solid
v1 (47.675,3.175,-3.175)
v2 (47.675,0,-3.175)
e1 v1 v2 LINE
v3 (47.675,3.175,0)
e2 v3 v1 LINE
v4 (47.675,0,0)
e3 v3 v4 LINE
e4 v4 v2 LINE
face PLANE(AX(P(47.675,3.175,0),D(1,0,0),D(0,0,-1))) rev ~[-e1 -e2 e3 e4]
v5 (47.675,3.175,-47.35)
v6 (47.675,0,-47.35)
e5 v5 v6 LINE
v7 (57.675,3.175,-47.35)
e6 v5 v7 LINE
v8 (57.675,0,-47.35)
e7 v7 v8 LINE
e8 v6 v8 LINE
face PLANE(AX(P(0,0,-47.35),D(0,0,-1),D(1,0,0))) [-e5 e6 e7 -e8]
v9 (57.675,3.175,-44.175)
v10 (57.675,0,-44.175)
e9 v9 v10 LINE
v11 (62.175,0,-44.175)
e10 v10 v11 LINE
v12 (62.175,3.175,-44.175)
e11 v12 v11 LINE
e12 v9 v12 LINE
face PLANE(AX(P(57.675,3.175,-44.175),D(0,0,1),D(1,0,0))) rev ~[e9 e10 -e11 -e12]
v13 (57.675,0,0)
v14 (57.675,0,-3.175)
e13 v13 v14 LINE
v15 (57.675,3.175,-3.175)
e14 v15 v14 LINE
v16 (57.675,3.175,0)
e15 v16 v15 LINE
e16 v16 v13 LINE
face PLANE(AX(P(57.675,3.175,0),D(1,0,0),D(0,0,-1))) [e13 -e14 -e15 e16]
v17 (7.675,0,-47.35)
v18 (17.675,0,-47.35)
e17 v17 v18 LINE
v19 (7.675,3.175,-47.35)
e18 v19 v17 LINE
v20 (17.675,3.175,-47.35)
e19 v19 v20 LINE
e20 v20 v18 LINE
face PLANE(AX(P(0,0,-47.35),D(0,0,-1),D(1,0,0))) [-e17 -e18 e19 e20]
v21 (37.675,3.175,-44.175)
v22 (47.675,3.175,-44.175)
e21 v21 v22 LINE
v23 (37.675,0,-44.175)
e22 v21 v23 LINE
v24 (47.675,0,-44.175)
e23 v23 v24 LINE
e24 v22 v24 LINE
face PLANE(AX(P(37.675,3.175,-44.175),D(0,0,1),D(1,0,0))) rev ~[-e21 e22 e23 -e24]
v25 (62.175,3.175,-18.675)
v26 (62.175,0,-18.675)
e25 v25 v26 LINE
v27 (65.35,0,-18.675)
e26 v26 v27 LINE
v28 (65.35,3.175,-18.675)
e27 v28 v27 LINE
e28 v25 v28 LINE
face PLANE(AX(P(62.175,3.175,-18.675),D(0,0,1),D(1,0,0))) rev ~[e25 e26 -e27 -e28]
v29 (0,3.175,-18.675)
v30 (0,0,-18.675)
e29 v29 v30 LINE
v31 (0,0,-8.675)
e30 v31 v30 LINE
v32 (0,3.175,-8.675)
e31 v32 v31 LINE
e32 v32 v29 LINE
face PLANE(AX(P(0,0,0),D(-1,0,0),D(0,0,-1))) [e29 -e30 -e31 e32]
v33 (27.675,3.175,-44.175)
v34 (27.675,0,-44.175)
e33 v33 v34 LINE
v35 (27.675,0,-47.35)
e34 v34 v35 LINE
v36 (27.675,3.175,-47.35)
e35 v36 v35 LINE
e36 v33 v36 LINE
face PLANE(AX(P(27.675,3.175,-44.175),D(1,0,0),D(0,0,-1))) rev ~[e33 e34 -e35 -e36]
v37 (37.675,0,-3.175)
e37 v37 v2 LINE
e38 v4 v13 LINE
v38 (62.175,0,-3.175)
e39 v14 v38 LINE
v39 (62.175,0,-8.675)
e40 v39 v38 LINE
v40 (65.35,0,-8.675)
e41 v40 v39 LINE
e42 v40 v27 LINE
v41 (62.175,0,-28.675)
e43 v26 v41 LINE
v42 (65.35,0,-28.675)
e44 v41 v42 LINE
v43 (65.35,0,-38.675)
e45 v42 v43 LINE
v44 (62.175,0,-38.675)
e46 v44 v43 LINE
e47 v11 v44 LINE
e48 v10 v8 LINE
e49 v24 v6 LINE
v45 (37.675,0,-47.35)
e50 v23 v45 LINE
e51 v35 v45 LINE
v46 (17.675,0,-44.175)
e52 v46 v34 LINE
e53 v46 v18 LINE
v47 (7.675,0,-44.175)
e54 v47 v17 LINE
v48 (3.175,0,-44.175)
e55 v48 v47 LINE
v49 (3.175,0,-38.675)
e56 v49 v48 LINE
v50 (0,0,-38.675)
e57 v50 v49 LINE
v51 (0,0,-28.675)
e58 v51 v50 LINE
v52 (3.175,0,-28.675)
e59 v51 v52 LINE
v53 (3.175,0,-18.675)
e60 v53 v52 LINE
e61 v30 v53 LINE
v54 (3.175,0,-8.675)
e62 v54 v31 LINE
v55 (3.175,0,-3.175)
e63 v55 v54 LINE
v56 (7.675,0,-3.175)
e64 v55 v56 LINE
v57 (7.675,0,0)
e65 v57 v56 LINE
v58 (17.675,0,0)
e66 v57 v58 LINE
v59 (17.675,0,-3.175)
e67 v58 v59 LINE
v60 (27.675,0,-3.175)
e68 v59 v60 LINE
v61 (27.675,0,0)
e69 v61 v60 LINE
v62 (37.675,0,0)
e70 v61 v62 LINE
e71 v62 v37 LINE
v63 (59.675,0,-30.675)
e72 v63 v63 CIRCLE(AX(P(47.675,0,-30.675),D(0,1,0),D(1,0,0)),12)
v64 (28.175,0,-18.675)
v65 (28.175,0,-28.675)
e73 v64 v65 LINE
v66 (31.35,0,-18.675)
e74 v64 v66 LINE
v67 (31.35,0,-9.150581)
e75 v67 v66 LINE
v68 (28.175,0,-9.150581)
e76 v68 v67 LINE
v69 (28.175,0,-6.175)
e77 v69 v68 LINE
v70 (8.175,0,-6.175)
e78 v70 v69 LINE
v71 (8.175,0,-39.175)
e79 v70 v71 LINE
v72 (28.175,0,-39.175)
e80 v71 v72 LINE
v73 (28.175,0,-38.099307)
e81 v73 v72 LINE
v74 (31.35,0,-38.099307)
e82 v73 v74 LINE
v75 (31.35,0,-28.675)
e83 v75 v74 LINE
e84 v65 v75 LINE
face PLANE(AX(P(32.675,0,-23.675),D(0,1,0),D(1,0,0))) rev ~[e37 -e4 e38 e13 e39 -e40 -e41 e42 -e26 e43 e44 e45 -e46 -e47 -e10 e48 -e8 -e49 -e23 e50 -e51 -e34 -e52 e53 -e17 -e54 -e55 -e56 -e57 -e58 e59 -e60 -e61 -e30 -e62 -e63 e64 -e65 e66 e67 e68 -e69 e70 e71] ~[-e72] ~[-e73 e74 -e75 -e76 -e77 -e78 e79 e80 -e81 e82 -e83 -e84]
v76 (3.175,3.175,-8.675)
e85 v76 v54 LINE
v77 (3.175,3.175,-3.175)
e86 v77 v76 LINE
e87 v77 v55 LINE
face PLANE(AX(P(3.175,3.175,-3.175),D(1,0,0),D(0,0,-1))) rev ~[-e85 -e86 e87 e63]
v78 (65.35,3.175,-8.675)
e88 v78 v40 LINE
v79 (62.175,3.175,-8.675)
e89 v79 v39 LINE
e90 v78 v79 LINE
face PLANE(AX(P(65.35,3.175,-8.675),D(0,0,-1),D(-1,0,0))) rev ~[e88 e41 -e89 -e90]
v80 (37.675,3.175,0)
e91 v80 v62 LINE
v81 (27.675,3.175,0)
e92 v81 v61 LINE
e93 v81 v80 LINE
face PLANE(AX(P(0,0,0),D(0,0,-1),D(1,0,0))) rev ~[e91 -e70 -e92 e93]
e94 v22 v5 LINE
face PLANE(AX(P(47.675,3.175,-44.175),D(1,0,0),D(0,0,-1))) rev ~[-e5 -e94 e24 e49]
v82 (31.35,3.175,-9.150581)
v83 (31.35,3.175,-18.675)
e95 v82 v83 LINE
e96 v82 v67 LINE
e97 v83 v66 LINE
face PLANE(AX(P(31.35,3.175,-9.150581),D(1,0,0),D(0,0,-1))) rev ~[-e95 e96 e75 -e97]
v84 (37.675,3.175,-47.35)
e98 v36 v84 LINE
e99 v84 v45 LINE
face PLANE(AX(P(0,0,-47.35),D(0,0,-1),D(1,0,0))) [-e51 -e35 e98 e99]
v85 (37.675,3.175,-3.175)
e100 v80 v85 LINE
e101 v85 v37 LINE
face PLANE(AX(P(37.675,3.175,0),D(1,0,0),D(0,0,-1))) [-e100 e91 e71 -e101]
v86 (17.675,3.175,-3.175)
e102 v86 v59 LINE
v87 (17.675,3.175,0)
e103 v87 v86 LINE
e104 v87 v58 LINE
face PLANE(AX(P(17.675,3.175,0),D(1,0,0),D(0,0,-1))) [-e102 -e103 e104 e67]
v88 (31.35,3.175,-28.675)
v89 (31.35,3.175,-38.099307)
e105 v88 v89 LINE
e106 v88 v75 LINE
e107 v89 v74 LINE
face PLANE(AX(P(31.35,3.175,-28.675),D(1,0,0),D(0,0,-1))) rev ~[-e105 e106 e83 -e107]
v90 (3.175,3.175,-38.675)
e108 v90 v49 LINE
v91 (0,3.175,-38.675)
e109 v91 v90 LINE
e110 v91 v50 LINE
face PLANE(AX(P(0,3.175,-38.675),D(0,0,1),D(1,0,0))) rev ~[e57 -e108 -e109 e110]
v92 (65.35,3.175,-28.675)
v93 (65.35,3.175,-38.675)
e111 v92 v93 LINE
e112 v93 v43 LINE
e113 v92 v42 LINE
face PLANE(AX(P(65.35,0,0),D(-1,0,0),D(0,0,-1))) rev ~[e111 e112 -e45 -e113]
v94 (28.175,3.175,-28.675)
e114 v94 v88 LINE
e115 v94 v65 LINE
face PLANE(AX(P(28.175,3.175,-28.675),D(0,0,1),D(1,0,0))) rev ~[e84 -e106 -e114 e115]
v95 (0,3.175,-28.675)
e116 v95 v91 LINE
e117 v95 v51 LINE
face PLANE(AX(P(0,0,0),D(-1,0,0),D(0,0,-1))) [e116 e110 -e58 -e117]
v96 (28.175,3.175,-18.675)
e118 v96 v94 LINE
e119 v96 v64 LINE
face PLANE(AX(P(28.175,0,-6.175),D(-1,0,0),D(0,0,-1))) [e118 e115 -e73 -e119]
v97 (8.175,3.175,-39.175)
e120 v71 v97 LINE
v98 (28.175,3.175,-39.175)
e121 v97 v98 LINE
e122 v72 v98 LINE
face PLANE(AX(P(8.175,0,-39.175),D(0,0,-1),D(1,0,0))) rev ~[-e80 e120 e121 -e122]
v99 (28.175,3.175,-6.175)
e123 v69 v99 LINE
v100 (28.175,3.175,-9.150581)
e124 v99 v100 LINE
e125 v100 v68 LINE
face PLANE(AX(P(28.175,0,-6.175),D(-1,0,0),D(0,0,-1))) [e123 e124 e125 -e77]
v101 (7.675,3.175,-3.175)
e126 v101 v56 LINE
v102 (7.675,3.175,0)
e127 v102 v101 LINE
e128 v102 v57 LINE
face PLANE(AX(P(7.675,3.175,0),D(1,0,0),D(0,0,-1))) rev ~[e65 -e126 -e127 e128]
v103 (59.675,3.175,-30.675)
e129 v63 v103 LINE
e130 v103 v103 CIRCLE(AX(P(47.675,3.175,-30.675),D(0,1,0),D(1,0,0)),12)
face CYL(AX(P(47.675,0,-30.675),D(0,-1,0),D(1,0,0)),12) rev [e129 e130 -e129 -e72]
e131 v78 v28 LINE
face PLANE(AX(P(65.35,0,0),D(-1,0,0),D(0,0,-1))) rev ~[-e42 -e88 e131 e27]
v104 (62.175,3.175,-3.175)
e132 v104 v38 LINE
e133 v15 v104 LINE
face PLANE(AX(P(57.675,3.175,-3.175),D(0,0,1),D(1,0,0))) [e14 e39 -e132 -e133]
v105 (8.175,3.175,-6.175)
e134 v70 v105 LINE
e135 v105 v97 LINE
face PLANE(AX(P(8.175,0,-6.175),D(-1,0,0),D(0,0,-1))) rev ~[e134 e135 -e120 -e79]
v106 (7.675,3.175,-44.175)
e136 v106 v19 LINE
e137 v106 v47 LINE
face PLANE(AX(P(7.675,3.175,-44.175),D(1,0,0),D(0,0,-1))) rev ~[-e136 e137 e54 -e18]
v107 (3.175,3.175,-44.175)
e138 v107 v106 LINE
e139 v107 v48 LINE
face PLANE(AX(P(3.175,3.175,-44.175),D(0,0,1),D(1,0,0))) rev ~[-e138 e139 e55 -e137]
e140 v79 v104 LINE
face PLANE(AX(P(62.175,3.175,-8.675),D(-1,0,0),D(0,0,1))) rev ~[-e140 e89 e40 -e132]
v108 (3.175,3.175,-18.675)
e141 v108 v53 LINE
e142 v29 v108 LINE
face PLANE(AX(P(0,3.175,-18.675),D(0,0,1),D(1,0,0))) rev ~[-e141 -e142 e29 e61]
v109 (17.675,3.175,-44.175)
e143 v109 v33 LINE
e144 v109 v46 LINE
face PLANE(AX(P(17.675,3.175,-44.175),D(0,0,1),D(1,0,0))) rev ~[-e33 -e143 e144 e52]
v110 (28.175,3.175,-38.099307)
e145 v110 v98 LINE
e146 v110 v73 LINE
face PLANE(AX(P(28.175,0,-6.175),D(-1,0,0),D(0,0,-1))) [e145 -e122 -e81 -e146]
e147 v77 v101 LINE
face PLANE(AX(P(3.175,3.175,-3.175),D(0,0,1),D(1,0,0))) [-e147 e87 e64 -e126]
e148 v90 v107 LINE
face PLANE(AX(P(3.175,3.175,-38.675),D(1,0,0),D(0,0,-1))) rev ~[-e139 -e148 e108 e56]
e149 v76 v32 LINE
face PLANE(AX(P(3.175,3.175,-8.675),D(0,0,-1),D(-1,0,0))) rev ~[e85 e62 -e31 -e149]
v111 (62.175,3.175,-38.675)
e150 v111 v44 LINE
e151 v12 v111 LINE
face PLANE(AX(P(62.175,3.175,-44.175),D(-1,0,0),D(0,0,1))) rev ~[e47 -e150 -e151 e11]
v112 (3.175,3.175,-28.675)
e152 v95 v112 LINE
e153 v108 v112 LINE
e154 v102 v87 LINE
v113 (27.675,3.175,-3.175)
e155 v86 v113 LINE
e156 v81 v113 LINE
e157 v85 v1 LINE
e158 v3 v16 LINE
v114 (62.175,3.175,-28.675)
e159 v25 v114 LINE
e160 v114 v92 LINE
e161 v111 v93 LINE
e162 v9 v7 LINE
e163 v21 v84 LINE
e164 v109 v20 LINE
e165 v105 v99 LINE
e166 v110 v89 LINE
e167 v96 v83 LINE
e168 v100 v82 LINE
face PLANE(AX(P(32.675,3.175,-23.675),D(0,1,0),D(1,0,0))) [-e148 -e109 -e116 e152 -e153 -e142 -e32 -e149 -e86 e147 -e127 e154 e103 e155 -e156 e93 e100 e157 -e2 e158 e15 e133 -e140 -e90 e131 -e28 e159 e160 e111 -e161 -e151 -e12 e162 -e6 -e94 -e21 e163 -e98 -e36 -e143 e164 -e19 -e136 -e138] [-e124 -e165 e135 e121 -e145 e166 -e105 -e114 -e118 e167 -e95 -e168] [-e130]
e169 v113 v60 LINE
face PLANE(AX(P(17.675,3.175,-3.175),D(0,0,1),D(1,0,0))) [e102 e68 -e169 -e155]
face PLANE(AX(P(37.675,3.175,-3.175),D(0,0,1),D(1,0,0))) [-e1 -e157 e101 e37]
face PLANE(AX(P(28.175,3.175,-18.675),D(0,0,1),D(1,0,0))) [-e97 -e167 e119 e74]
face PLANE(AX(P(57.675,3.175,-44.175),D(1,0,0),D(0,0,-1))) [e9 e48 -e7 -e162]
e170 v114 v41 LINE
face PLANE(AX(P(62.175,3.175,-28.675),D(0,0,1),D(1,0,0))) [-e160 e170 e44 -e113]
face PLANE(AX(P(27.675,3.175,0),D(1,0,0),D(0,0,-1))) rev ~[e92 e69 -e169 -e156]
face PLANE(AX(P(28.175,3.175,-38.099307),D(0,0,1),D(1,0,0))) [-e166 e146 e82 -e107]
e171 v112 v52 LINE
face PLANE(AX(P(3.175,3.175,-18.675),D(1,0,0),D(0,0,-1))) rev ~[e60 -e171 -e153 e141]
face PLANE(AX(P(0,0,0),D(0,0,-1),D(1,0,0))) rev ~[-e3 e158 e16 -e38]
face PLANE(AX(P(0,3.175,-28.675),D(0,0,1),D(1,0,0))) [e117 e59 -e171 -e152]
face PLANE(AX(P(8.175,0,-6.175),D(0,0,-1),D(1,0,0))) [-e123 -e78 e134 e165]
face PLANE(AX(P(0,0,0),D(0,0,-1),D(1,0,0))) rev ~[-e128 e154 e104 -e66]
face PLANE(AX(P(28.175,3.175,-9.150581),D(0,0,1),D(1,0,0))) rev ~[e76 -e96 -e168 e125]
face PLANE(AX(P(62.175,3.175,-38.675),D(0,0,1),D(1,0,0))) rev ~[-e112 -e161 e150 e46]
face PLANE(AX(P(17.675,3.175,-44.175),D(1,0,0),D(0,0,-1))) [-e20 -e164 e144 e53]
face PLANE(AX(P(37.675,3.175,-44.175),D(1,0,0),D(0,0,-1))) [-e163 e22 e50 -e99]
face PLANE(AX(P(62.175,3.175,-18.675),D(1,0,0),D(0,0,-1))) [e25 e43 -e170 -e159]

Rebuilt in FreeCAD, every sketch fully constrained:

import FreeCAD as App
import Part
import Sketcher
Q = App.Units.Quantity


def add_polygon(sketch, points):
    """Adds a closed chain of lines whose ends are joined by coincident constraints."""
    first, n = sketch.GeometryCount, len(points)
    for a, b in zip(points, points[1:] + points[:1]):
        sketch.addGeometry(Part.LineSegment(App.Vector(*a, 0), App.Vector(*b, 0)), False)
    for i in range(n):
        sketch.addConstraint(Sketcher.Constraint("Coincident", first + i, 2, first + (i + 1) % n, 1))

doc = App.newDocument("Part")
body = doc.addObject("PartDesign::Body", "Body")

# Sketch on XZ plane
sketch1 = doc.addObject("Sketcher::SketchObject", "Sketch")
body.addObject(sketch1)
sketch1.AttachmentSupport = (doc.XZ_Plane, [""])
sketch1.MapMode = "FlatFace"
add_polygon(sketch1, [(0, -47), (0, 0), (65, 0), (65, -47)])  # lines 0-3
add_polygon(sketch1, [(28, -6), (8, -6), (8, -39), (28, -39)])  # lines 4-7
sketch1.addGeometry(Part.Circle(App.Vector(48, -31, 0), App.Vector(0, 0, 1), 12), False)  # 8
sketch1.addConstraint([
    Sketcher.Constraint("Vertical", 0),
    Sketcher.Constraint("Horizontal", 1),
    Sketcher.Constraint("Vertical", 2),
    Sketcher.Constraint("Horizontal", 3),
    Sketcher.Constraint("Horizontal", 4),
    Sketcher.Constraint("Vertical", 5),
    Sketcher.Constraint("Horizontal", 6),
    Sketcher.Constraint("Vertical", 7),
    Sketcher.Constraint("Coincident", 0, 2, -1, 1),
    Sketcher.Constraint("Diameter", 8, Q("24 mm")),
    Sketcher.Constraint("DistanceX", 4, 2, 4, 1, Q("20 mm")),
    Sketcher.Constraint("DistanceY", 5, 2, 5, 1, Q("33 mm")),
    Sketcher.Constraint("DistanceX", 1, 1, 1, 2, Q("65.35 mm")),
    Sketcher.Constraint("DistanceY", 0, 1, 0, 2, Q("47.35 mm")),
    Sketcher.Constraint("DistanceX", 4, 2, 8, 3, Q("39.5 mm")),
    Sketcher.Constraint("DistanceY", 8, 3, 4, 2, Q("24.5 mm")),
    Sketcher.Constraint("DistanceX", -1, 1, 8, 3, Q("47.675 mm")),
    Sketcher.Constraint("DistanceY", 8, 3, -1, 1, Q("30.675 mm")),
])
pad1 = doc.addObject("PartDesign::Pad", "Pad")
body.addObject(pad1)
pad1.Profile = sketch1
pad1.Length = 3.175
pad1.Reversed = True

# Sketch on XZ plane
sketch2 = doc.addObject("Sketcher::SketchObject", "Sketch001")
body.addObject(sketch2)
sketch2.AttachmentSupport = (doc.XZ_Plane, [""])
sketch2.MapMode = "FlatFace"
sketch2.AttachmentOffset = App.Placement(App.Vector(0, 0, -3.175), App.Rotation())
add_polygon(sketch2, [(17.7, -47.4), (17.7, -44.2), (27.7, -44.2), (27.7, -47.4)])  # lines 0-3
add_polygon(sketch2, [(37.7, -47.4), (37.7, -44.2), (47.7, -44.2), (47.7, -47.4)])  # lines 4-7
add_polygon(sketch2, [(57.7, -47.4), (57.7, -44.2), (62.2, -44.2), (62.2, -38.7), (65.3, -38.7), (65.3, -47.4)])  # lines 8-13
add_polygon(sketch2, [(62.2, -28.7), (62.2, -18.7), (65.3, -18.7), (65.3, -28.7)])  # lines 14-17
add_polygon(sketch2, [(65.3, 0), (65.3, -8.7), (62.2, -8.7), (62.2, -3.2), (57.7, -3.2), (57.7, 0)])  # lines 18-23
add_polygon(sketch2, [(37.7, -3.2), (37.7, 0), (47.7, 0), (47.7, -3.2)])  # lines 24-27
add_polygon(sketch2, [(17.7, -3.2), (17.7, 0), (27.7, 0), (27.7, -3.2)])  # lines 28-31
add_polygon(sketch2, [(7.7, 0), (7.7, -3.2), (3.2, -3.2), (3.2, -8.7), (0, -8.7), (0, 0)])  # lines 32-37
add_polygon(sketch2, [(0, -28.7), (0, -18.7), (3.2, -18.7), (3.2, -28.7)])  # lines 38-41
add_polygon(sketch2, [(0, -38.7), (3.2, -38.7), (3.2, -44.2), (7.7, -44.2), (7.7, -47.4), (0, -47.4)])  # lines 42-47
add_polygon(sketch2, [(28.2, -38.1), (28.2, -28.7), (31.4, -28.7), (31.4, -38.1)])  # lines 48-51
add_polygon(sketch2, [(28.2, -18.7), (28.2, -9.2), (31.4, -9.2), (31.4, -18.7)])  # lines 52-55
sketch2.addConstraint([
    Sketcher.Constraint("Vertical", 0),
    Sketcher.Constraint("Horizontal", 1),
    Sketcher.Constraint("Vertical", 2),
    Sketcher.Constraint("Horizontal", 3),
    Sketcher.Constraint("Vertical", 4),
    Sketcher.Constraint("Horizontal", 5),
    Sketcher.Constraint("Vertical", 6),
    Sketcher.Constraint("Horizontal", 7),
    Sketcher.Constraint("Vertical", 8),
    Sketcher.Constraint("Horizontal", 9),
    Sketcher.Constraint("Vertical", 10),
    Sketcher.Constraint("Horizontal", 11),
    Sketcher.Constraint("Vertical", 12),
    Sketcher.Constraint("Horizontal", 13),
    Sketcher.Constraint("Vertical", 14),
    Sketcher.Constraint("Horizontal", 15),
    Sketcher.Constraint("Vertical", 16),
    Sketcher.Constraint("Horizontal", 17),
    Sketcher.Constraint("Vertical", 18),
    Sketcher.Constraint("Horizontal", 19),
    Sketcher.Constraint("Vertical", 20),
    Sketcher.Constraint("Horizontal", 21),
    Sketcher.Constraint("Vertical", 22),
    Sketcher.Constraint("Horizontal", 23),
    Sketcher.Constraint("Vertical", 24),
    Sketcher.Constraint("Horizontal", 25),
    Sketcher.Constraint("Vertical", 26),
    Sketcher.Constraint("Horizontal", 27),
    Sketcher.Constraint("Vertical", 28),
    Sketcher.Constraint("Horizontal", 29),
    Sketcher.Constraint("Vertical", 30),
    Sketcher.Constraint("Horizontal", 31),
    Sketcher.Constraint("Vertical", 32),
    Sketcher.Constraint("Horizontal", 33),
    Sketcher.Constraint("Vertical", 34),
    Sketcher.Constraint("Horizontal", 35),
    Sketcher.Constraint("Vertical", 36),
    Sketcher.Constraint("Horizontal", 37),
    Sketcher.Constraint("Vertical", 38),
    Sketcher.Constraint("Horizontal", 39),
    Sketcher.Constraint("Vertical", 40),
    Sketcher.Constraint("Horizontal", 41),
    Sketcher.Constraint("Horizontal", 42),
    Sketcher.Constraint("Vertical", 43),
    Sketcher.Constraint("Horizontal", 44),
    Sketcher.Constraint("Vertical", 45),
    Sketcher.Constraint("Horizontal", 46),
    Sketcher.Constraint("Vertical", 47),
    Sketcher.Constraint("Vertical", 48),
    Sketcher.Constraint("Horizontal", 49),
    Sketcher.Constraint("Vertical", 50),
    Sketcher.Constraint("Horizontal", 51),
    Sketcher.Constraint("Vertical", 52),
    Sketcher.Constraint("Horizontal", 53),
    Sketcher.Constraint("Vertical", 54),
    Sketcher.Constraint("Horizontal", 55),
    Sketcher.Constraint("Coincident", 36, 2, -1, 1),
    Sketcher.Constraint("PointOnObject", 22, 2, -1),
    Sketcher.Constraint("PointOnObject", 24, 2, -1),
    Sketcher.Constraint("PointOnObject", 28, 2, -1),
    Sketcher.Constraint("PointOnObject", 38, 2, -2),
    Sketcher.Constraint("PointOnObject", 46, 2, -2),
    Sketcher.Constraint("Horizontal", 1, 2, 4, 2),
    Sketcher.Constraint("Horizontal", 3, 2, 6, 2),
    Sketcher.Constraint("Horizontal", 5, 2, 8, 2),
    Sketcher.Constraint("Horizontal", 7, 2, 12, 2),
    Sketcher.Constraint("Horizontal", 21, 2, 26, 2),
    Sketcher.Constraint("Horizontal", 27, 2, 30, 2),
    Sketcher.Constraint("Horizontal", 31, 2, 32, 2),
    Sketcher.Constraint("Horizontal", 19, 2, 34, 2),
    Sketcher.Constraint("Horizontal", 15, 2, 38, 2),
    Sketcher.Constraint("Horizontal", 17, 2, 40, 2),
    Sketcher.Constraint("Horizontal", 11, 2, 42, 2),
    Sketcher.Constraint("Horizontal", 9, 2, 43, 2),
    Sketcher.Constraint("Horizontal", 13, 2, 45, 2),
    Sketcher.Constraint("Horizontal", 41, 2, 48, 2),
    Sketcher.Constraint("Horizontal", 39, 2, 54, 2),
    Sketcher.Constraint("Vertical", 10, 2, 14, 2),
    Sketcher.Constraint("Vertical", 12, 2, 15, 2),
    Sketcher.Constraint("Vertical", 16, 2, 18, 2),
    Sketcher.Constraint("Vertical", 17, 2, 19, 2),
    Sketcher.Constraint("Vertical", 13, 2, 21, 2),
    Sketcher.Constraint("Vertical", 7, 2, 24, 2),
    Sketcher.Constraint("Vertical", 6, 2, 25, 2),
    Sketcher.Constraint("Vertical", 3, 2, 28, 2),
    Sketcher.Constraint("Vertical", 2, 2, 29, 2),
    Sketcher.Constraint("Vertical", 34, 2, 39, 2),
    Sketcher.Constraint("Vertical", 40, 2, 42, 2),
    Sketcher.Constraint("Vertical", 37, 2, 44, 2),
    Sketcher.Constraint("Vertical", 51, 2, 52, 2),
    Sketcher.Constraint("Vertical", 50, 2, 53, 2),
    Sketcher.Constraint("Equal", 3, 5),
    Sketcher.Constraint("Equal", 21, 33),
    Sketcher.Constraint("Equal", 19, 35),
    Sketcher.Constraint("Equal", 42, 49),
    Sketcher.Constraint("Equal", 55, 0),
    Sketcher.Constraint("Equal", 31, 14),
    Sketcher.Constraint("Equal", 12, 18),
    Sketcher.Constraint("Equal", 10, 20),
    Sketcher.Constraint("DistanceX", 1, 1, 1, 2, Q("10 mm")),
    Sketcher.Constraint("DistanceX", 9, 1, 9, 2, Q("4.5 mm")),
    Sketcher.Constraint("DistanceY", 10, 1, 10, 2, Q("5.5 mm")),
    Sketcher.Constraint("DistanceX", 1, 2, 4, 2, Q("10 mm")),
    Sketcher.Constraint("DistanceX", 5, 2, 8, 2, Q("10 mm")),
    Sketcher.Constraint("DistanceY", 10, 2, 14, 2, Q("20 mm")),
    Sketcher.Constraint("DistanceY", 15, 2, 18, 2, Q("10 mm")),
    Sketcher.Constraint("DistanceX", 32, 2, 31, 2, Q("10 mm")),
    Sketcher.Constraint("DistanceX", 1, 2, 48, 2, Q("0.5 mm")),
    Sketcher.Constraint("DistanceX", 11, 1, 11, 2, Q("3.175 mm")),
    Sketcher.Constraint("DistanceY", 52, 1, 52, 2, Q("9.524419 mm")),
    Sketcher.Constraint("DistanceY", 48, 1, 48, 2, Q("9.424307 mm")),
])
pocket1 = doc.addObject("PartDesign::Pocket", "Pocket")
body.addObject(pocket1)
pocket1.Profile = sketch2
pocket1.Length = 3.175
pocket1.Reversed = True

doc.recompute()
